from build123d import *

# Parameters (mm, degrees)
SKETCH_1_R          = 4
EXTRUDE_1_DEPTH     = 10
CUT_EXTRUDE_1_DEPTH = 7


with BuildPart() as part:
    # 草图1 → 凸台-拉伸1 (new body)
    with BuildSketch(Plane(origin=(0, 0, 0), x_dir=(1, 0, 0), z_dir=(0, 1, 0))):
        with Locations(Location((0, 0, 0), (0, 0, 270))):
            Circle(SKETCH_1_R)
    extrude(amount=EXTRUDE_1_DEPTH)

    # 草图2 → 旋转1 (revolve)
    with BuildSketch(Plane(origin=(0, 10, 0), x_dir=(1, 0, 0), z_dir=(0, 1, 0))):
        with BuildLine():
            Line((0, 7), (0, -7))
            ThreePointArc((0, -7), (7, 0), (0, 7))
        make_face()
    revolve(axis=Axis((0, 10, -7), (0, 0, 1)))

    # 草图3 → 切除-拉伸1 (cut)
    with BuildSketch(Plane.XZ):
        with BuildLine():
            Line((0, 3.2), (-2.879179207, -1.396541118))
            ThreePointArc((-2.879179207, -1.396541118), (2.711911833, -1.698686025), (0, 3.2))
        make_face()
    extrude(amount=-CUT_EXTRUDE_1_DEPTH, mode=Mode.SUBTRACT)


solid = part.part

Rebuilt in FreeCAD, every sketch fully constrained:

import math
import FreeCAD as App
import Part
import Sketcher
from FreeCAD import Vector
Q = App.Units.Quantity

doc = App.newDocument("Part")
body = doc.addObject("PartDesign::Body", "Body")

# Sketch on XZ plane
sketch1 = doc.addObject("Sketcher::SketchObject", "Sketch")
body.addObject(sketch1)
sketch1.AttachmentSupport = (doc.XZ_Plane, [""])
sketch1.MapMode = "FlatFace"
sketch1.addGeometry(Part.Circle(Vector(0, 0, 0), Vector(0, 0, 1), 4), False)
sketch1.addConstraint(Sketcher.Constraint("Coincident", 0, 3, -1, 1))
sketch1.addConstraint(Sketcher.Constraint("Diameter", 0, Q("8 mm")))
pad1 = doc.addObject("PartDesign::Pad", "Pad")
body.addObject(pad1)
pad1.Profile = sketch1
pad1.Length = 10
pad1.Reversed = True

# Sketch on XZ plane
sketch2 = doc.addObject("Sketcher::SketchObject", "Sketch001")
body.addObject(sketch2)
sketch2.AttachmentSupport = (doc.XZ_Plane, [""])
sketch2.MapMode = "FlatFace"
sketch2.AttachmentOffset = App.Placement(Vector(0, 0, -10), App.Rotation())
sketch2.addGeometry(Part.LineSegment(Vector(0, -7, 0), Vector(0, 7, 0)), False)
sketch2.addGeometry(Part.ArcOfCircle(Part.Circle(Vector(0, 0, 0), Vector(0, 0, 1), 7), math.radians(-90), math.radians(90)), False)
sketch2.addConstraint(Sketcher.Constraint("Coincident", 0, 1, 1, 1))
sketch2.addConstraint(Sketcher.Constraint("Coincident", 1, 2, 0, 2))
sketch2.addConstraint(Sketcher.Constraint("Vertical", 0))
sketch2.addConstraint(Sketcher.Constraint("Coincident", 1, 3, -1, 1))
sketch2.addConstraint(Sketcher.Constraint("PointOnObject", 0, 1, -2))
sketch2.addConstraint(Sketcher.Constraint("Radius", 1, Q("7 mm")))
revolution = doc.addObject("PartDesign::Revolution", "Revolution")
body.addObject(revolution)
revolution.Profile = sketch2
revolution.ReferenceAxis = (sketch2, ["V_Axis"])
revolution.Angle = 360

# Sketch on XZ plane
sketch3 = doc.addObject("Sketcher::SketchObject", "Sketch002")
body.addObject(sketch3)
sketch3.AttachmentSupport = (doc.XZ_Plane, [""])
sketch3.MapMode = "FlatFace"
sketch3.addGeometry(Part.LineSegment(Vector(0, 3.2, 0), Vector(-2.9, -1.4, 0)), False)
sketch3.addGeometry(Part.ArcOfCircle(Part.Circle(Vector(0, 0, 0), Vector(0, 0, 1), 3.2), math.radians(-154), math.radians(90)), False)
sketch3.addConstraint(Sketcher.Constraint("Coincident", 0, 1, 1, 2))
sketch3.addConstraint(Sketcher.Constraint("Coincident", 1, 1, 0, 2))
sketch3.addConstraint(Sketcher.Constraint("Coincident", 1, 3, -1, 1))
sketch3.addConstraint(Sketcher.Constraint("PointOnObject", 0, 1, -2))
sketch3.addConstraint(Sketcher.Constraint("Radius", 1, Q("3.2 mm")))
sketch3.addConstraint(Sketcher.Constraint("DistanceX", 1, 1, -1, 1, Q("2.879179 mm")))
pocket1 = doc.addObject("PartDesign::Pocket", "Pocket")
body.addObject(pocket1)
pocket1.Profile = sketch3
pocket1.Length = 7

doc.recompute()
